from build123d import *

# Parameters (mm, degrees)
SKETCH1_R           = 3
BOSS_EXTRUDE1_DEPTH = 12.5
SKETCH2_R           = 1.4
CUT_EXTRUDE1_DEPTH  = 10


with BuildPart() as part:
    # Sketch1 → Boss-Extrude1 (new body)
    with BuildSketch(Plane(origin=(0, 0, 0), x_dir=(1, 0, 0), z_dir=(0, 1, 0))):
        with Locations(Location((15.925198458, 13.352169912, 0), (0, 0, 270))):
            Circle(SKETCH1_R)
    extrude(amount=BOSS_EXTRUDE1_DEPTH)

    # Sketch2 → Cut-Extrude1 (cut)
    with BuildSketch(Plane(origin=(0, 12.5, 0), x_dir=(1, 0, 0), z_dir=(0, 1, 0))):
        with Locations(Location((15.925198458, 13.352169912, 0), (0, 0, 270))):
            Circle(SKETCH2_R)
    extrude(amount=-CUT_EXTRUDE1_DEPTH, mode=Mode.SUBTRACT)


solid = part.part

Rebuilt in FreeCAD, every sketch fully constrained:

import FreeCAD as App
import Part
import Sketcher

V = App.Vector

doc = App.newDocument("Part")
body = doc.addObject("PartDesign::Body", "Body")

sketch1 = body.newObject("Sketcher::SketchObject", "Sketch")
sketch1.AttachmentSupport = (doc.getObject("XZ_Plane"), [""])
sketch1.MapMode = "FlatFace"
sketch1.addGeometry(Part.Circle(V(15.925198, -13.35217, 0), V(0, 0, 1), 3), False)
sketch1.addConstraint([
    Sketcher.Constraint("Diameter", 0, 6.0),
    Sketcher.Constraint("DistanceX", -1, 1, 0, 3, 15.925198),
    Sketcher.Constraint("DistanceY", 0, 3, -1, 1, 13.35217),
])
pad1 = body.newObject("PartDesign::Pad", "Pad")
pad1.Profile = sketch1
pad1.Length = 12.5
pad1.Reversed = True

sketch2 = body.newObject("Sketcher::SketchObject", "Sketch001")
sketch2.AttachmentSupport = (doc.getObject("XZ_Plane"), [""])
sketch2.MapMode = "FlatFace"
sketch2.AttachmentOffset = App.Placement(V(0, 0, -12.5), App.Rotation())
sketch2.addGeometry(Part.Circle(V(15.925198, -13.35217, 0), V(0, 0, 1), 1.4), False)
sketch2.addConstraint([
    Sketcher.Constraint("Diameter", 0, 2.8),
    Sketcher.Constraint("DistanceX", -1, 1, 0, 3, 15.925198),
    Sketcher.Constraint("DistanceY", 0, 3, -1, 1, 13.35217),
])
pocket1 = body.newObject("PartDesign::Pocket", "Pocket")
pocket1.Profile = sketch2
pocket1.Length = 10
pocket1.Reversed = True

doc.recompute()
